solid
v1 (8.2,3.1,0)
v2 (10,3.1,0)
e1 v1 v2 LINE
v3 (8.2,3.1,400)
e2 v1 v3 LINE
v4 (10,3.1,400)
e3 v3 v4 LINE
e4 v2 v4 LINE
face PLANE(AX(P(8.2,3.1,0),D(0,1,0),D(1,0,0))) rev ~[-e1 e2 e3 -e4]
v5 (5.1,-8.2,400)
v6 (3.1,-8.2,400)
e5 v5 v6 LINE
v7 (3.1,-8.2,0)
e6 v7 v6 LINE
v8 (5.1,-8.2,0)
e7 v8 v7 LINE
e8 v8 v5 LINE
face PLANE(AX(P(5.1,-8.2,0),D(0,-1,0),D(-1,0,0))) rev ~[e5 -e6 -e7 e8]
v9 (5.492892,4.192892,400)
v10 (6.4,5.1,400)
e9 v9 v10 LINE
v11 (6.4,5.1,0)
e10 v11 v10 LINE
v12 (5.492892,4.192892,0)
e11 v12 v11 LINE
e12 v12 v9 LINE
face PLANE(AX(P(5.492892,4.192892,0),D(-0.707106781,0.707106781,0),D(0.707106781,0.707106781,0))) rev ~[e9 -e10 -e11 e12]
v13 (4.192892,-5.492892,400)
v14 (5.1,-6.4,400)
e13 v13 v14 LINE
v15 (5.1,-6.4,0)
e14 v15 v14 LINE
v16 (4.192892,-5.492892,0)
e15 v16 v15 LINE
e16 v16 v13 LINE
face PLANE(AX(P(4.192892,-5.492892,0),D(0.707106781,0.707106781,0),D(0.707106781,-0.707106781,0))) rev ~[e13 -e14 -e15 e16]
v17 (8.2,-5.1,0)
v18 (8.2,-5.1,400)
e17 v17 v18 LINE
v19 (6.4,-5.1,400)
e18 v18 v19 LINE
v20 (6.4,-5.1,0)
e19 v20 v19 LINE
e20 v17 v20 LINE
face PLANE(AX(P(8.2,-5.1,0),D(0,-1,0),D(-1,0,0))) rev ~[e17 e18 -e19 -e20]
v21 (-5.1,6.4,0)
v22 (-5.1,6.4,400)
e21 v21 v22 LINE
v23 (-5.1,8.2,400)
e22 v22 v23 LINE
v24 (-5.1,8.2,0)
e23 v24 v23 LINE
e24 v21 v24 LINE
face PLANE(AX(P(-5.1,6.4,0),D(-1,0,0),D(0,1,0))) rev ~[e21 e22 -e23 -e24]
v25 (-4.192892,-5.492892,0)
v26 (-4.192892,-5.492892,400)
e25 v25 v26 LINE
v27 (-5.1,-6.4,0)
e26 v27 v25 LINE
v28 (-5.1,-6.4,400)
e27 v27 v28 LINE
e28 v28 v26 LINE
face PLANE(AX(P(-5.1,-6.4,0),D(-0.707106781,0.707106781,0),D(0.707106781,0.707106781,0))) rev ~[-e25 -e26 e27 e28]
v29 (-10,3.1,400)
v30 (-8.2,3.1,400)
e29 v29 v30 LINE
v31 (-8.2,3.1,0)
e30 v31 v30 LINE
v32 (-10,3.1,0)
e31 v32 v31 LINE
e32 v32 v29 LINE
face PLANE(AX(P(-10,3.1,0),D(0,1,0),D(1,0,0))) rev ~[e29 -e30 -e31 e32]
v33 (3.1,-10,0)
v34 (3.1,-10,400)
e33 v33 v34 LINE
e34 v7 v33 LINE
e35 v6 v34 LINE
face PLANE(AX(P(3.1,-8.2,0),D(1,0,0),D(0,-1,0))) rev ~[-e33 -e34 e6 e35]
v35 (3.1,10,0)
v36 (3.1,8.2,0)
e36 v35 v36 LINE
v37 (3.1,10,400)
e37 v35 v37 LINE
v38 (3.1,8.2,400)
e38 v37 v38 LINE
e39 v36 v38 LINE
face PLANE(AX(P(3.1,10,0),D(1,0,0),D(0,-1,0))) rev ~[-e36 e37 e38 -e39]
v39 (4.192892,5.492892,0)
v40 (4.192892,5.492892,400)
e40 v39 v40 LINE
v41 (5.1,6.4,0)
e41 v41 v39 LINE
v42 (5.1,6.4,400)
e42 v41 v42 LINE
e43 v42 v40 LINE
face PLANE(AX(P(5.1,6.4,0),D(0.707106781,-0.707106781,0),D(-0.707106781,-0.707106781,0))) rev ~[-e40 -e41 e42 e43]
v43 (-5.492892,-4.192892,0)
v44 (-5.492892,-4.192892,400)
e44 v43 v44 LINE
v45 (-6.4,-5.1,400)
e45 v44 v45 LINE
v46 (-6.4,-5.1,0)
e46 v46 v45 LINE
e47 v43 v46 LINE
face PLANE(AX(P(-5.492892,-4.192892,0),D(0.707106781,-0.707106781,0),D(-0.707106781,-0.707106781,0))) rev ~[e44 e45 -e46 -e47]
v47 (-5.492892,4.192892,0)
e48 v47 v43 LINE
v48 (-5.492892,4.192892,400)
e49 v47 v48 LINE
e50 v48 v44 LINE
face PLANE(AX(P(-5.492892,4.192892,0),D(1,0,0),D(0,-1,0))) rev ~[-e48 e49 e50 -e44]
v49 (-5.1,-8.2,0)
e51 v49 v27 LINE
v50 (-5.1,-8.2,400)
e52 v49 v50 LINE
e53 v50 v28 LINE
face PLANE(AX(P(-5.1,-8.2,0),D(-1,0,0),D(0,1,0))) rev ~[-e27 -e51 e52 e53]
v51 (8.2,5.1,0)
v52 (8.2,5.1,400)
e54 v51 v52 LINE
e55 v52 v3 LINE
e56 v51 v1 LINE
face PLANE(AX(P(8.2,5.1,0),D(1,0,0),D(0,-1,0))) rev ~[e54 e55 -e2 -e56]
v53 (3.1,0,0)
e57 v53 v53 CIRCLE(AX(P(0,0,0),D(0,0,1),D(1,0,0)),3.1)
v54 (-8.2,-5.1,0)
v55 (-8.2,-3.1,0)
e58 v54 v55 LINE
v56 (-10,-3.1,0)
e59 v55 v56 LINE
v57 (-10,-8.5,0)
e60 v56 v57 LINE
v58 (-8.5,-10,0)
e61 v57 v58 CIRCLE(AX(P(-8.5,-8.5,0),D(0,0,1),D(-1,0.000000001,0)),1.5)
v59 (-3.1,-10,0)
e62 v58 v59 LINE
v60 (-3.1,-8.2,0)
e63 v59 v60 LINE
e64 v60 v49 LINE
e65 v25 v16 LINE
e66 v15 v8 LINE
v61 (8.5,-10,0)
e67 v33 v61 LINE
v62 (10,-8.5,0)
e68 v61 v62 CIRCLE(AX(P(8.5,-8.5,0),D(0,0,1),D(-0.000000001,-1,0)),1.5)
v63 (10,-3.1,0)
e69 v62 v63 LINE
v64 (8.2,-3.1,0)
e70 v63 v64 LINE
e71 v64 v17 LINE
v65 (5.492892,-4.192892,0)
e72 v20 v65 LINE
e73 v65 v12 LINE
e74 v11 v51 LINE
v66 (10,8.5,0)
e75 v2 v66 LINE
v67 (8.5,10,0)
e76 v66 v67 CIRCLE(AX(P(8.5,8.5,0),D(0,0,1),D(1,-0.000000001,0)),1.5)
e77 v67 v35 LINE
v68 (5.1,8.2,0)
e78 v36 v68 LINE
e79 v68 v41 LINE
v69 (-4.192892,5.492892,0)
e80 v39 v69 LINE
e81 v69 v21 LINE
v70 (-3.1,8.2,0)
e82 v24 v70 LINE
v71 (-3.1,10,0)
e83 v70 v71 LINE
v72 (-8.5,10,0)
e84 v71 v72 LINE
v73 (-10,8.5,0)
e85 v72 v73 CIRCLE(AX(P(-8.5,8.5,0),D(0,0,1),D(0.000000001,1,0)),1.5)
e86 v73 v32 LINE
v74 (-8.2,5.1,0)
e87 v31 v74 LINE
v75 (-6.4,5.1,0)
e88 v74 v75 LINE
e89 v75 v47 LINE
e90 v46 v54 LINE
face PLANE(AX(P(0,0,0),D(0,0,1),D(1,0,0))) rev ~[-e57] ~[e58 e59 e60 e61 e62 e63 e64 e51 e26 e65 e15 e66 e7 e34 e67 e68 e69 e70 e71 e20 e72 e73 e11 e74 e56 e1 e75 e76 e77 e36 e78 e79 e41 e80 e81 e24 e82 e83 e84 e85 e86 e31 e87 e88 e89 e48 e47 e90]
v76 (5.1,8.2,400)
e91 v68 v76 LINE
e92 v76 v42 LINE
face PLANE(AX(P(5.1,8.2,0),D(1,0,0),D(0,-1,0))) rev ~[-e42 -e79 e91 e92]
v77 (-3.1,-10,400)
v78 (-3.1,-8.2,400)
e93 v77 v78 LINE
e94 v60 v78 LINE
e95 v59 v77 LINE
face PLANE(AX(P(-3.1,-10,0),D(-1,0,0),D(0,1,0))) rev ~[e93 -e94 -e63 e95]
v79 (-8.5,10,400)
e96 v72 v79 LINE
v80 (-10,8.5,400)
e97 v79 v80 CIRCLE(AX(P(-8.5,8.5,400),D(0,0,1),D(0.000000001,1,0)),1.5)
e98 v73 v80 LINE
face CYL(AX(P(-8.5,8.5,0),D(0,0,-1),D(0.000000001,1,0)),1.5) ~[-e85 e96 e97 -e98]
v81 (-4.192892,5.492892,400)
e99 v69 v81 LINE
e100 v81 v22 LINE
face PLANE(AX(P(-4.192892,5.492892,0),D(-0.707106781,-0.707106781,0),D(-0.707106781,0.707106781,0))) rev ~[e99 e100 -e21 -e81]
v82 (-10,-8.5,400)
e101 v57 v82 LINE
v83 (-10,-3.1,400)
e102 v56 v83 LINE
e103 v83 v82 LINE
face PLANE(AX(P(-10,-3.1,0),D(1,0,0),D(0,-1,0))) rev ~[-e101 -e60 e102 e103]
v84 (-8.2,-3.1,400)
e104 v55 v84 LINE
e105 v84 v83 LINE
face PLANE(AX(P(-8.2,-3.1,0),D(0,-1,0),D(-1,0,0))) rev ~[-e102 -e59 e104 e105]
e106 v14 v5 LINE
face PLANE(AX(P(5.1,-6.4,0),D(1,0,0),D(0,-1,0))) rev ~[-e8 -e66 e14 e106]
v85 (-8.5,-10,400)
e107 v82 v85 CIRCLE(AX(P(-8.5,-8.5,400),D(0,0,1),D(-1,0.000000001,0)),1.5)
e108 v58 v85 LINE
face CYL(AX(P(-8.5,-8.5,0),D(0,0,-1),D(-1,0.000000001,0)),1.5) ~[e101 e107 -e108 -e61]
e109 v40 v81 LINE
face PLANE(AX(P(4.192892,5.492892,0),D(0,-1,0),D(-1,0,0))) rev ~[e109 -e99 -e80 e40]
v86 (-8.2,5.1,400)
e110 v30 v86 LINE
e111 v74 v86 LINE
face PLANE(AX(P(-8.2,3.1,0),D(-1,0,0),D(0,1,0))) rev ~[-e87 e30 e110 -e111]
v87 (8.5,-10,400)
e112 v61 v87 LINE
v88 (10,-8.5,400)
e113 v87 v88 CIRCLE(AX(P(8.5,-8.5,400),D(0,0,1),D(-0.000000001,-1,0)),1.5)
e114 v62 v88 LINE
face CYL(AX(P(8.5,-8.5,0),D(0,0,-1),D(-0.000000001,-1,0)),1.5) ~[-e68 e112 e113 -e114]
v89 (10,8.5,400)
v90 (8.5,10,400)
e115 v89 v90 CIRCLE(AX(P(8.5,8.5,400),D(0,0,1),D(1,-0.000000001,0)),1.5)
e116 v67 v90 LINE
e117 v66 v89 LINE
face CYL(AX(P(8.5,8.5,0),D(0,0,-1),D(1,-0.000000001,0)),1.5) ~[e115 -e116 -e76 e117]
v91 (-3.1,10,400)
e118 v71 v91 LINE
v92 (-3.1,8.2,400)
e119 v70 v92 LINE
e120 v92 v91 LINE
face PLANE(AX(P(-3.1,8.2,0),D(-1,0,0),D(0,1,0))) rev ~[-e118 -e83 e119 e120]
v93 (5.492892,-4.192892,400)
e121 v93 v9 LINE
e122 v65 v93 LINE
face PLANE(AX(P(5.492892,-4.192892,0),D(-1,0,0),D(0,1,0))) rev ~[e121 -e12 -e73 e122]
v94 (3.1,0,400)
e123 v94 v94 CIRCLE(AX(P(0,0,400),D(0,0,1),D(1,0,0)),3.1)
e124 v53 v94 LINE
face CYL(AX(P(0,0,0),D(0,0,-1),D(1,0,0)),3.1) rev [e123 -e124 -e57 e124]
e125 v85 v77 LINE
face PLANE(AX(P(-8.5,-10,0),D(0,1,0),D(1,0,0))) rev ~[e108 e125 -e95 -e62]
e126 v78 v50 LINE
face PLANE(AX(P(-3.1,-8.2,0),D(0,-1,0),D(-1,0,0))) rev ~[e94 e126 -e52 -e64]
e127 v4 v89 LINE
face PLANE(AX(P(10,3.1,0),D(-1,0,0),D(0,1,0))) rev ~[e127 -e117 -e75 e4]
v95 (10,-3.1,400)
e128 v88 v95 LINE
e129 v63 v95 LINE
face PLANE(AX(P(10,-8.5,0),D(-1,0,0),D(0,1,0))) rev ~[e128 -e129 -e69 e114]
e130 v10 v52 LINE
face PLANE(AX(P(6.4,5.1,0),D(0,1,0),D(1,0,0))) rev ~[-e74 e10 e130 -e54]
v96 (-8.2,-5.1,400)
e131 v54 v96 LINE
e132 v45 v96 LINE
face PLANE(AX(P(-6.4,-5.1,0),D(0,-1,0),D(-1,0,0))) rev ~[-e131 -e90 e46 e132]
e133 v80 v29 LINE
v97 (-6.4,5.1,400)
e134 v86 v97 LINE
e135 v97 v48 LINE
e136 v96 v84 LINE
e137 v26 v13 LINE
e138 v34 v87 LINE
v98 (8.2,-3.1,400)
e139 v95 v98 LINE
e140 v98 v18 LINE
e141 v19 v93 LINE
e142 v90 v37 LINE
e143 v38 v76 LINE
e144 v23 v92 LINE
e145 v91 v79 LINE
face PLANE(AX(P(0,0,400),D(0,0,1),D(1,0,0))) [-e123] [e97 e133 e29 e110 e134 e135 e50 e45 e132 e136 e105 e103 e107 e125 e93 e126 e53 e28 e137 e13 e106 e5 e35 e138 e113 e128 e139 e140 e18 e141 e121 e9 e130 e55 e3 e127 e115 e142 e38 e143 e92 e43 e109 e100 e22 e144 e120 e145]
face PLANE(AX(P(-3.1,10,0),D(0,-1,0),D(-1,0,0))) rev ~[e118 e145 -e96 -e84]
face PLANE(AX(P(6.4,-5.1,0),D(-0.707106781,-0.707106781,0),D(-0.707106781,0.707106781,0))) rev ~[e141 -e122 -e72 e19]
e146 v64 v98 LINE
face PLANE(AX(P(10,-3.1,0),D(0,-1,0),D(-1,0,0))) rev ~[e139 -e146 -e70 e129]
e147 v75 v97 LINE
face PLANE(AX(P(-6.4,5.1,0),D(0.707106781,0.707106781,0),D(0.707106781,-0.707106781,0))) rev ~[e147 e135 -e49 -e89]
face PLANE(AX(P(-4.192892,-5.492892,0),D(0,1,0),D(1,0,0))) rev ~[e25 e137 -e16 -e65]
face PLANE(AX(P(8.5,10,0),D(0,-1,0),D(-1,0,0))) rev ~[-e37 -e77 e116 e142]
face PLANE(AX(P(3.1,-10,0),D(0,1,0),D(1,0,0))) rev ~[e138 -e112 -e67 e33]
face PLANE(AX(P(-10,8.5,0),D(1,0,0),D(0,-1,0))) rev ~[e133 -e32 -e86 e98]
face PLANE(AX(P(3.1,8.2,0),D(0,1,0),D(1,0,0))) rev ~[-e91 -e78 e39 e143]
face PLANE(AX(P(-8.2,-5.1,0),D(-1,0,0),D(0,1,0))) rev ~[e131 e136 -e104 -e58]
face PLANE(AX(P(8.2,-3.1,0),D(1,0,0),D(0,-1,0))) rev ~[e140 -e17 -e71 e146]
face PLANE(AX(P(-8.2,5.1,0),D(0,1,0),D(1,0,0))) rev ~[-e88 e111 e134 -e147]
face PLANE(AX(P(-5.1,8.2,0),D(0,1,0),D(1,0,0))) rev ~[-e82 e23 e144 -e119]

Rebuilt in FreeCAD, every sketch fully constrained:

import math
import FreeCAD as App
import Part
import Sketcher
Q = App.Units.Quantity

doc = App.newDocument("Part")
body = doc.addObject("PartDesign::Body", "Body")

# Sketch on XY plane
sketch1 = body.newObject("Sketcher::SketchObject", "Sketch")
sketch1.AttachmentSupport = (doc.getObject("XY_Plane"), [""])
sketch1.MapMode = "FlatFace"
sketch1.addGeometry([
    Part.LineSegment(App.Vector(-10, 3.1, 0), App.Vector(-8.2, 3.1, 0)),  # 0
    Part.LineSegment(App.Vector(-8.2, 3.1, 0), App.Vector(-8.2, 5.1, 0)),  # 1
    Part.LineSegment(App.Vector(-8.2, 5.1, 0), App.Vector(-6.4, 5.1, 0)),  # 2
    Part.LineSegment(App.Vector(-6.4, 5.1, 0), App.Vector(-5.492892, 4.192892, 0)),  # 3
    Part.LineSegment(App.Vector(-5.492892, 4.192892, 0), App.Vector(-5.492892, -4.192892, 0)),  # 4
    Part.LineSegment(App.Vector(-5.492892, -4.192892, 0), App.Vector(-6.4, -5.1, 0)),  # 5
    Part.LineSegment(App.Vector(-6.4, -5.1, 0), App.Vector(-8.2, -5.1, 0)),  # 6
    Part.LineSegment(App.Vector(-8.2, -5.1, 0), App.Vector(-8.2, -3.1, 0)),  # 7
    Part.LineSegment(App.Vector(-8.2, -3.1, 0), App.Vector(-10, -3.1, 0)),  # 8
    Part.LineSegment(App.Vector(-10, -3.1, 0), App.Vector(-10, -8.5, 0)),  # 9
    Part.ArcOfCircle(Part.Circle(App.Vector(-8.5, -8.5, 0), App.Vector(0, 0, 1), 1.5), math.radians(180), math.radians(270)),  # 10
    Part.LineSegment(App.Vector(-8.5, -10, 0), App.Vector(-3.1, -10, 0)),  # 11
    Part.LineSegment(App.Vector(-3.1, -10, 0), App.Vector(-3.1, -8.2, 0)),  # 12
    Part.LineSegment(App.Vector(-3.1, -8.2, 0), App.Vector(-5.1, -8.2, 0)),  # 13
    Part.LineSegment(App.Vector(-5.1, -8.2, 0), App.Vector(-5.1, -6.4, 0)),  # 14
    Part.LineSegment(App.Vector(-5.1, -6.4, 0), App.Vector(-4.192892, -5.492892, 0)),  # 15
    Part.LineSegment(App.Vector(-4.192892, -5.492892, 0), App.Vector(4.192892, -5.492892, 0)),  # 16
    Part.LineSegment(App.Vector(4.192892, -5.492892, 0), App.Vector(5.1, -6.4, 0)),  # 17
    Part.LineSegment(App.Vector(5.1, -6.4, 0), App.Vector(5.1, -8.2, 0)),  # 18
    Part.LineSegment(App.Vector(5.1, -8.2, 0), App.Vector(3.1, -8.2, 0)),  # 19
    Part.LineSegment(App.Vector(3.1, -8.2, 0), App.Vector(3.1, -10, 0)),  # 20
    Part.LineSegment(App.Vector(3.1, -10, 0), App.Vector(8.5, -10, 0)),  # 21
    Part.ArcOfCircle(Part.Circle(App.Vector(8.5, -8.5, 0), App.Vector(0, 0, 1), 1.5), math.radians(-90), math.radians(0)),  # 22
    Part.LineSegment(App.Vector(10, -8.5, 0), App.Vector(10, -3.1, 0)),  # 23
    Part.LineSegment(App.Vector(10, -3.1, 0), App.Vector(8.2, -3.1, 0)),  # 24
    Part.LineSegment(App.Vector(8.2, -3.1, 0), App.Vector(8.2, -5.1, 0)),  # 25
    Part.LineSegment(App.Vector(8.2, -5.1, 0), App.Vector(6.4, -5.1, 0)),  # 26
    Part.LineSegment(App.Vector(6.4, -5.1, 0), App.Vector(5.492892, -4.192892, 0)),  # 27
    Part.LineSegment(App.Vector(5.492892, -4.192892, 0), App.Vector(5.492892, 4.192892, 0)),  # 28
    Part.LineSegment(App.Vector(5.492892, 4.192892, 0), App.Vector(6.4, 5.1, 0)),  # 29
    Part.LineSegment(App.Vector(6.4, 5.1, 0), App.Vector(8.2, 5.1, 0)),  # 30
    Part.LineSegment(App.Vector(8.2, 5.1, 0), App.Vector(8.2, 3.1, 0)),  # 31
    Part.LineSegment(App.Vector(8.2, 3.1, 0), App.Vector(10, 3.1, 0)),  # 32
    Part.LineSegment(App.Vector(10, 3.1, 0), App.Vector(10, 8.5, 0)),  # 33
    Part.ArcOfCircle(Part.Circle(App.Vector(8.5, 8.5, 0), App.Vector(0, 0, 1), 1.5), math.radians(0), math.radians(90)),  # 34
    Part.LineSegment(App.Vector(8.5, 10, 0), App.Vector(3.1, 10, 0)),  # 35
    Part.LineSegment(App.Vector(3.1, 10, 0), App.Vector(3.1, 8.2, 0)),  # 36
    Part.LineSegment(App.Vector(3.1, 8.2, 0), App.Vector(5.1, 8.2, 0)),  # 37
    Part.LineSegment(App.Vector(5.1, 8.2, 0), App.Vector(5.1, 6.4, 0)),  # 38
    Part.LineSegment(App.Vector(5.1, 6.4, 0), App.Vector(4.192892, 5.492892, 0)),  # 39
    Part.LineSegment(App.Vector(4.192892, 5.492892, 0), App.Vector(-4.192892, 5.492892, 0)),  # 40
    Part.LineSegment(App.Vector(-4.192892, 5.492892, 0), App.Vector(-5.1, 6.4, 0)),  # 41
    Part.LineSegment(App.Vector(-5.1, 6.4, 0), App.Vector(-5.1, 8.2, 0)),  # 42
    Part.LineSegment(App.Vector(-5.1, 8.2, 0), App.Vector(-3.1, 8.2, 0)),  # 43
    Part.LineSegment(App.Vector(-3.1, 8.2, 0), App.Vector(-3.1, 10, 0)),  # 44
    Part.LineSegment(App.Vector(-3.1, 10, 0), App.Vector(-8.5, 10, 0)),  # 45
    Part.ArcOfCircle(Part.Circle(App.Vector(-8.5, 8.5, 0), App.Vector(0, 0, 1), 1.5), math.radians(90), math.radians(180)),  # 46
    Part.LineSegment(App.Vector(-10, 8.5, 0), App.Vector(-10, 3.1, 0)),  # 47
    Part.Circle(App.Vector(0, 0, 0), App.Vector(0, 0, 1), 3.1),  # 48
], False)
sketch1.addConstraint([
    Sketcher.Constraint("Coincident", 0, 2, 1, 1),
    Sketcher.Constraint("Coincident", 1, 2, 2, 1),
    Sketcher.Constraint("Coincident", 2, 2, 3, 1),
    Sketcher.Constraint("Coincident", 3, 2, 4, 1),
    Sketcher.Constraint("Coincident", 4, 2, 5, 1),
    Sketcher.Constraint("Coincident", 5, 2, 6, 1),
    Sketcher.Constraint("Coincident", 6, 2, 7, 1),
    Sketcher.Constraint("Coincident", 7, 2, 8, 1),
    Sketcher.Constraint("Coincident", 8, 2, 9, 1),
    Sketcher.Constraint("Tangent", 9, 2, 10, 1),
    Sketcher.Constraint("Tangent", 10, 2, 11, 1),
    Sketcher.Constraint("Coincident", 11, 2, 12, 1),
    Sketcher.Constraint("Coincident", 12, 2, 13, 1),
    Sketcher.Constraint("Coincident", 13, 2, 14, 1),
    Sketcher.Constraint("Coincident", 14, 2, 15, 1),
    Sketcher.Constraint("Coincident", 15, 2, 16, 1),
    Sketcher.Constraint("Coincident", 16, 2, 17, 1),
    Sketcher.Constraint("Coincident", 17, 2, 18, 1),
    Sketcher.Constraint("Coincident", 18, 2, 19, 1),
    Sketcher.Constraint("Coincident", 19, 2, 20, 1),
    Sketcher.Constraint("Coincident", 20, 2, 21, 1),
    Sketcher.Constraint("Tangent", 21, 2, 22, 1),
    Sketcher.Constraint("Tangent", 22, 2, 23, 1),
    Sketcher.Constraint("Coincident", 23, 2, 24, 1),
    Sketcher.Constraint("Coincident", 24, 2, 25, 1),
    Sketcher.Constraint("Coincident", 25, 2, 26, 1),
    Sketcher.Constraint("Coincident", 26, 2, 27, 1),
    Sketcher.Constraint("Coincident", 27, 2, 28, 1),
    Sketcher.Constraint("Coincident", 28, 2, 29, 1),
    Sketcher.Constraint("Coincident", 29, 2, 30, 1),
    Sketcher.Constraint("Coincident", 30, 2, 31, 1),
    Sketcher.Constraint("Coincident", 31, 2, 32, 1),
    Sketcher.Constraint("Coincident", 32, 2, 33, 1),
    Sketcher.Constraint("Tangent", 33, 2, 34, 1),
    Sketcher.Constraint("Tangent", 34, 2, 35, 1),
    Sketcher.Constraint("Coincident", 35, 2, 36, 1),
    Sketcher.Constraint("Coincident", 36, 2, 37, 1),
    Sketcher.Constraint("Coincident", 37, 2, 38, 1),
    Sketcher.Constraint("Coincident", 38, 2, 39, 1),
    Sketcher.Constraint("Coincident", 39, 2, 40, 1),
    Sketcher.Constraint("Coincident", 40, 2, 41, 1),
    Sketcher.Constraint("Coincident", 41, 2, 42, 1),
    Sketcher.Constraint("Coincident", 42, 2, 43, 1),
    Sketcher.Constraint("Coincident", 43, 2, 44, 1),
    Sketcher.Constraint("Coincident", 44, 2, 45, 1),
    Sketcher.Constraint("Tangent", 45, 2, 46, 1),
    Sketcher.Constraint("Tangent", 46, 2, 47, 1),
    Sketcher.Constraint("Coincident", 47, 2, 0, 1),
    Sketcher.Constraint("Horizontal", 0),
    Sketcher.Constraint("Vertical", 1),
    Sketcher.Constraint("Horizontal", 2),
    Sketcher.Constraint("Vertical", 4),
    Sketcher.Constraint("Horizontal", 6),
    Sketcher.Constraint("Vertical", 7),
    Sketcher.Constraint("Horizontal", 8),
    Sketcher.Constraint("Vertical", 9),
    Sketcher.Constraint("Horizontal", 11),
    Sketcher.Constraint("Vertical", 12),
    Sketcher.Constraint("Horizontal", 13),
    Sketcher.Constraint("Vertical", 14),
    Sketcher.Constraint("Horizontal", 16),
    Sketcher.Constraint("Vertical", 18),
    Sketcher.Constraint("Horizontal", 19),
    Sketcher.Constraint("Vertical", 20),
    Sketcher.Constraint("Horizontal", 21),
    Sketcher.Constraint("Vertical", 23),
    Sketcher.Constraint("Horizontal", 24),
    Sketcher.Constraint("Vertical", 25),
    Sketcher.Constraint("Horizontal", 26),
    Sketcher.Constraint("Vertical", 28),
    Sketcher.Constraint("Horizontal", 30),
    Sketcher.Constraint("Vertical", 31),
    Sketcher.Constraint("Horizontal", 32),
    Sketcher.Constraint("Vertical", 33),
    Sketcher.Constraint("Horizontal", 35),
    Sketcher.Constraint("Vertical", 36),
    Sketcher.Constraint("Horizontal", 37),
    Sketcher.Constraint("Vertical", 38),
    Sketcher.Constraint("Horizontal", 40),
    Sketcher.Constraint("Vertical", 42),
    Sketcher.Constraint("Horizontal", 43),
    Sketcher.Constraint("Vertical", 44),
    Sketcher.Constraint("Horizontal", 45),
    Sketcher.Constraint("Vertical", 47),
    Sketcher.Constraint("Coincident", 48, 3, -1, 1),
    Sketcher.Constraint("Equal", 10, 22),
    Sketcher.Constraint("Equal", 22, 34),
    Sketcher.Constraint("Equal", 34, 46),
    Sketcher.Constraint("Symmetric", 10, 3, 34, 3, -1, 1),
    Sketcher.Constraint("Symmetric", 22, 3, 46, 3, -1, 1),
    Sketcher.Constraint("Symmetric", 0, 2, 24, 2, -1, 1),
    Sketcher.Constraint("Symmetric", 2, 2, 26, 2, -1, 1),
    Sketcher.Constraint("Symmetric", 3, 2, 27, 2, -1, 1),
    Sketcher.Constraint("Symmetric", 5, 2, 29, 2, -1, 1),
    Sketcher.Constraint("Symmetric", 7, 2, 31, 2, -1, 1),
    Sketcher.Constraint("Symmetric", 12, 2, 36, 2, -1, 1),
    Sketcher.Constraint("Symmetric", 14, 2, 38, 2, -1, 1),
    Sketcher.Constraint("Symmetric", 15, 2, 39, 2, -1, 1),
    Sketcher.Constraint("Symmetric", 17, 2, 41, 2, -1, 1),
    Sketcher.Constraint("Symmetric", 19, 2, 43, 2, -1, 1),
    Sketcher.Constraint("Symmetric", 10, 3, 22, 3, -2),
    Sketcher.Constraint("Symmetric", 14, 2, 17, 2, -2),
    Sketcher.Constraint("Symmetric", 12, 2, 19, 2, -2),
    Sketcher.Constraint("Symmetric", 7, 2, 24, 2, -2),
    Sketcher.Constraint("Symmetric", 5, 2, 26, 2, -2),
    Sketcher.Constraint("Perpendicular", 3, 5),
    Sketcher.Constraint("Parallel", 5, 15),
    Sketcher.Constraint("Perpendicular", 15, 17),
    Sketcher.Constraint("Perpendicular", 27, 29),
    Sketcher.Constraint("Perpendicular", 39, 41),
    Sketcher.Constraint("Horizontal", 4, 2, 27, 2),
    Sketcher.Constraint("Equal", 0, 2),
    Sketcher.Constraint("Equal", 43, 1),
    Sketcher.Constraint("Equal", 40, 4),
    Sketcher.Constraint("Equal", 45, 9),
    Sketcher.Constraint("Equal", 32, 12),
    Sketcher.Constraint("Equal", 12, 14),
    Sketcher.Constraint("Equal", 5, 15),
    Sketcher.Constraint("Diameter", 48, Q("6.2 mm")),
    Sketcher.Constraint("Radius", 10, Q("1.5 mm")),
    Sketcher.Constraint("DistanceX", 13, 2, 13, 1, Q("2 mm")),
    Sketcher.Constraint("DistanceX", 0, 1, 0, 2, Q("1.8 mm")),
    Sketcher.Constraint("DistanceX", 11, 1, 11, 2, Q("5.4 mm")),
    Sketcher.Constraint("DistanceX", 8, 2, -1, 1, Q("10 mm")),
    Sketcher.Constraint("DistanceX", 16, 1, 16, 2, Q("8.385785 mm")),
])
pad1 = body.newObject("PartDesign::Pad", "Pad")
pad1.Profile = sketch1
pad1.Length = 400

doc.recompute()
